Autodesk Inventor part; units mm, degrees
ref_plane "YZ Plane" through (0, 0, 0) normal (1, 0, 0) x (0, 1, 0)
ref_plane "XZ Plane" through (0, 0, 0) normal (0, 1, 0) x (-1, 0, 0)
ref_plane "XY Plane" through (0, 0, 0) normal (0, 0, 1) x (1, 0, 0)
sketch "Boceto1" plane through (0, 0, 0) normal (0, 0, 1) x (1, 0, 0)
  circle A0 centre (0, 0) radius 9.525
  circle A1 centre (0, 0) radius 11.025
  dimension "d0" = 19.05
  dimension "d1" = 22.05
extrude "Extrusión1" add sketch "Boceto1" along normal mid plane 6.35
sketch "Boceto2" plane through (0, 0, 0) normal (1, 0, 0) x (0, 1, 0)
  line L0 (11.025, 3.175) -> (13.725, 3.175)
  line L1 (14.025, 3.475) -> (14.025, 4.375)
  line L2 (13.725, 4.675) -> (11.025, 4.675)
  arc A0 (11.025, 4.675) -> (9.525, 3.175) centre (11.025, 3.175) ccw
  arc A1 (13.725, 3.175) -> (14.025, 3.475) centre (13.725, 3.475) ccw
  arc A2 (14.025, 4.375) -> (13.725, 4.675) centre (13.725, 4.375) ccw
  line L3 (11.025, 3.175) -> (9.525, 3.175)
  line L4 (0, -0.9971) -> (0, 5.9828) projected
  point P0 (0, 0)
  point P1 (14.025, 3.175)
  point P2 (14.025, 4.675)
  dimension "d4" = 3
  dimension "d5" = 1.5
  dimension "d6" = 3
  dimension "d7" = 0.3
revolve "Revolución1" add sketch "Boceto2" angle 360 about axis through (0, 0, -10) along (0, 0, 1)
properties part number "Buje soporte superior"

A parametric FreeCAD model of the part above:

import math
import FreeCAD as App
import Part
import Sketcher
from FreeCAD import Vector
Q = App.Units.Quantity

doc = App.newDocument("Part")
params = doc.addObject("Spreadsheet::Sheet", "Params")
for row, (alias, value) in enumerate([
    ("sketch1_diameter", "22.05 mm"),
    ("sketch1_diameter2", "19.05 mm"),
    ("pad1_length", "6.35 mm"),
    ("sketch2_radius", "0.3 mm"),
    ("sketch2_radius2", "1.5 mm"),
    ("revolution_angle", "360 deg"),
], start=1):
    params.set(f"A{row}", alias)
    params.set(f"B{row}", "=" + value)
    params.setAlias(f"B{row}", alias)

body = doc.addObject("PartDesign::Body", "Body")

sketch1 = body.newObject("Sketcher::SketchObject", "Sketch")
sketch1.AttachmentSupport = (doc.getObject("XY_Plane"), [""])
sketch1.MapMode = "FlatFace"
sketch1.addGeometry(Part.Circle(Vector(0, 0, 0), Vector(0, 0, 1), 11), False)
sketch1.addGeometry(Part.Circle(Vector(0, 0, 0), Vector(0, 0, 1), 10), False)
sketch1.addConstraint(Sketcher.Constraint("Coincident", 0, 3, -1, 1))
sketch1.addConstraint(Sketcher.Constraint("Coincident", 1, 3, -1, 1))
sketch1.addConstraint(Sketcher.Constraint("Diameter", 0, Q("22.05 mm")))
sketch1.addConstraint(Sketcher.Constraint("Diameter", 1, Q("19.05 mm")))
sketch1.setExpression("Constraints[2]", "Params.sketch1_diameter")
sketch1.setExpression("Constraints[3]", "Params.sketch1_diameter2")
pad1 = body.newObject("PartDesign::Pad", "Pad")
pad1.Profile = sketch1
pad1.setExpression("Length", "Params.pad1_length")
pad1.Midplane = True

sketch2 = body.newObject("Sketcher::SketchObject", "Sketch001")
sketch2.AttachmentSupport = (doc.getObject("YZ_Plane"), [""])
sketch2.MapMode = "FlatFace"
sketch2.addGeometry(Part.LineSegment(Vector(9.53, 3.17, 0), Vector(13.72, 3.17, 0)), False)
sketch2.addGeometry(Part.ArcOfCircle(Part.Circle(Vector(13.72, 3.48, 0), Vector(0, 0, 1), 0.3), math.radians(-90), math.radians(0)), False)
sketch2.addGeometry(Part.LineSegment(Vector(14.03, 3.48, 0), Vector(14.03, 4.38, 0)), False)
sketch2.addGeometry(Part.ArcOfCircle(Part.Circle(Vector(13.72, 4.38, 0), Vector(0, 0, 1), 0.3), math.radians(0), math.radians(90)), False)
sketch2.addGeometry(Part.LineSegment(Vector(13.72, 4.67, 0), Vector(11.03, 4.67, 0)), False)
sketch2.addGeometry(Part.ArcOfCircle(Part.Circle(Vector(11.03, 3.17, 0), Vector(0, 0, 1), 1.5), math.radians(90), math.radians(180)), False)
sketch2.addConstraint(Sketcher.Constraint("Tangent", 0, 2, 1, 1))
sketch2.addConstraint(Sketcher.Constraint("Tangent", 1, 2, 2, 1))
sketch2.addConstraint(Sketcher.Constraint("Tangent", 2, 2, 3, 1))
sketch2.addConstraint(Sketcher.Constraint("Tangent", 3, 2, 4, 1))
sketch2.addConstraint(Sketcher.Constraint("Tangent", 4, 2, 5, 1))
sketch2.addConstraint(Sketcher.Constraint("Coincident", 5, 2, 0, 1))
sketch2.addConstraint(Sketcher.Constraint("Horizontal", 0))
sketch2.addConstraint(Sketcher.Constraint("Vertical", 2))
sketch2.addConstraint(Sketcher.Constraint("Horizontal", 4))
sketch2.addConstraint(Sketcher.Constraint("Equal", 1, 3))
sketch2.addConstraint(Sketcher.Constraint("Horizontal", 5, 3, 0, 2))
sketch2.addConstraint(Sketcher.Constraint("Radius", 1, Q("0.3 mm")))
sketch2.addConstraint(Sketcher.Constraint("Radius", 5, Q("1.5 mm")))
sketch2.addConstraint(Sketcher.Constraint("DistanceX", 5, 3, 1, 2, Q("3 mm")))
sketch2.addConstraint(Sketcher.Constraint("DistanceX", -1, 1, 1, 3, Q("13.725 mm")))
sketch2.addConstraint(Sketcher.Constraint("DistanceY", -1, 1, 1, 3, Q("3.475 mm")))
sketch2.setExpression("Constraints[11]", "Params.sketch2_radius")
sketch2.setExpression("Constraints[12]", "Params.sketch2_radius2")
revolution = body.newObject("PartDesign::Revolution", "Revolution")
revolution.Profile = sketch2
revolution.ReferenceAxis = (sketch2, ["V_Axis"])
revolution.setExpression("Angle", "Params.revolution_angle")

doc.recompute()
